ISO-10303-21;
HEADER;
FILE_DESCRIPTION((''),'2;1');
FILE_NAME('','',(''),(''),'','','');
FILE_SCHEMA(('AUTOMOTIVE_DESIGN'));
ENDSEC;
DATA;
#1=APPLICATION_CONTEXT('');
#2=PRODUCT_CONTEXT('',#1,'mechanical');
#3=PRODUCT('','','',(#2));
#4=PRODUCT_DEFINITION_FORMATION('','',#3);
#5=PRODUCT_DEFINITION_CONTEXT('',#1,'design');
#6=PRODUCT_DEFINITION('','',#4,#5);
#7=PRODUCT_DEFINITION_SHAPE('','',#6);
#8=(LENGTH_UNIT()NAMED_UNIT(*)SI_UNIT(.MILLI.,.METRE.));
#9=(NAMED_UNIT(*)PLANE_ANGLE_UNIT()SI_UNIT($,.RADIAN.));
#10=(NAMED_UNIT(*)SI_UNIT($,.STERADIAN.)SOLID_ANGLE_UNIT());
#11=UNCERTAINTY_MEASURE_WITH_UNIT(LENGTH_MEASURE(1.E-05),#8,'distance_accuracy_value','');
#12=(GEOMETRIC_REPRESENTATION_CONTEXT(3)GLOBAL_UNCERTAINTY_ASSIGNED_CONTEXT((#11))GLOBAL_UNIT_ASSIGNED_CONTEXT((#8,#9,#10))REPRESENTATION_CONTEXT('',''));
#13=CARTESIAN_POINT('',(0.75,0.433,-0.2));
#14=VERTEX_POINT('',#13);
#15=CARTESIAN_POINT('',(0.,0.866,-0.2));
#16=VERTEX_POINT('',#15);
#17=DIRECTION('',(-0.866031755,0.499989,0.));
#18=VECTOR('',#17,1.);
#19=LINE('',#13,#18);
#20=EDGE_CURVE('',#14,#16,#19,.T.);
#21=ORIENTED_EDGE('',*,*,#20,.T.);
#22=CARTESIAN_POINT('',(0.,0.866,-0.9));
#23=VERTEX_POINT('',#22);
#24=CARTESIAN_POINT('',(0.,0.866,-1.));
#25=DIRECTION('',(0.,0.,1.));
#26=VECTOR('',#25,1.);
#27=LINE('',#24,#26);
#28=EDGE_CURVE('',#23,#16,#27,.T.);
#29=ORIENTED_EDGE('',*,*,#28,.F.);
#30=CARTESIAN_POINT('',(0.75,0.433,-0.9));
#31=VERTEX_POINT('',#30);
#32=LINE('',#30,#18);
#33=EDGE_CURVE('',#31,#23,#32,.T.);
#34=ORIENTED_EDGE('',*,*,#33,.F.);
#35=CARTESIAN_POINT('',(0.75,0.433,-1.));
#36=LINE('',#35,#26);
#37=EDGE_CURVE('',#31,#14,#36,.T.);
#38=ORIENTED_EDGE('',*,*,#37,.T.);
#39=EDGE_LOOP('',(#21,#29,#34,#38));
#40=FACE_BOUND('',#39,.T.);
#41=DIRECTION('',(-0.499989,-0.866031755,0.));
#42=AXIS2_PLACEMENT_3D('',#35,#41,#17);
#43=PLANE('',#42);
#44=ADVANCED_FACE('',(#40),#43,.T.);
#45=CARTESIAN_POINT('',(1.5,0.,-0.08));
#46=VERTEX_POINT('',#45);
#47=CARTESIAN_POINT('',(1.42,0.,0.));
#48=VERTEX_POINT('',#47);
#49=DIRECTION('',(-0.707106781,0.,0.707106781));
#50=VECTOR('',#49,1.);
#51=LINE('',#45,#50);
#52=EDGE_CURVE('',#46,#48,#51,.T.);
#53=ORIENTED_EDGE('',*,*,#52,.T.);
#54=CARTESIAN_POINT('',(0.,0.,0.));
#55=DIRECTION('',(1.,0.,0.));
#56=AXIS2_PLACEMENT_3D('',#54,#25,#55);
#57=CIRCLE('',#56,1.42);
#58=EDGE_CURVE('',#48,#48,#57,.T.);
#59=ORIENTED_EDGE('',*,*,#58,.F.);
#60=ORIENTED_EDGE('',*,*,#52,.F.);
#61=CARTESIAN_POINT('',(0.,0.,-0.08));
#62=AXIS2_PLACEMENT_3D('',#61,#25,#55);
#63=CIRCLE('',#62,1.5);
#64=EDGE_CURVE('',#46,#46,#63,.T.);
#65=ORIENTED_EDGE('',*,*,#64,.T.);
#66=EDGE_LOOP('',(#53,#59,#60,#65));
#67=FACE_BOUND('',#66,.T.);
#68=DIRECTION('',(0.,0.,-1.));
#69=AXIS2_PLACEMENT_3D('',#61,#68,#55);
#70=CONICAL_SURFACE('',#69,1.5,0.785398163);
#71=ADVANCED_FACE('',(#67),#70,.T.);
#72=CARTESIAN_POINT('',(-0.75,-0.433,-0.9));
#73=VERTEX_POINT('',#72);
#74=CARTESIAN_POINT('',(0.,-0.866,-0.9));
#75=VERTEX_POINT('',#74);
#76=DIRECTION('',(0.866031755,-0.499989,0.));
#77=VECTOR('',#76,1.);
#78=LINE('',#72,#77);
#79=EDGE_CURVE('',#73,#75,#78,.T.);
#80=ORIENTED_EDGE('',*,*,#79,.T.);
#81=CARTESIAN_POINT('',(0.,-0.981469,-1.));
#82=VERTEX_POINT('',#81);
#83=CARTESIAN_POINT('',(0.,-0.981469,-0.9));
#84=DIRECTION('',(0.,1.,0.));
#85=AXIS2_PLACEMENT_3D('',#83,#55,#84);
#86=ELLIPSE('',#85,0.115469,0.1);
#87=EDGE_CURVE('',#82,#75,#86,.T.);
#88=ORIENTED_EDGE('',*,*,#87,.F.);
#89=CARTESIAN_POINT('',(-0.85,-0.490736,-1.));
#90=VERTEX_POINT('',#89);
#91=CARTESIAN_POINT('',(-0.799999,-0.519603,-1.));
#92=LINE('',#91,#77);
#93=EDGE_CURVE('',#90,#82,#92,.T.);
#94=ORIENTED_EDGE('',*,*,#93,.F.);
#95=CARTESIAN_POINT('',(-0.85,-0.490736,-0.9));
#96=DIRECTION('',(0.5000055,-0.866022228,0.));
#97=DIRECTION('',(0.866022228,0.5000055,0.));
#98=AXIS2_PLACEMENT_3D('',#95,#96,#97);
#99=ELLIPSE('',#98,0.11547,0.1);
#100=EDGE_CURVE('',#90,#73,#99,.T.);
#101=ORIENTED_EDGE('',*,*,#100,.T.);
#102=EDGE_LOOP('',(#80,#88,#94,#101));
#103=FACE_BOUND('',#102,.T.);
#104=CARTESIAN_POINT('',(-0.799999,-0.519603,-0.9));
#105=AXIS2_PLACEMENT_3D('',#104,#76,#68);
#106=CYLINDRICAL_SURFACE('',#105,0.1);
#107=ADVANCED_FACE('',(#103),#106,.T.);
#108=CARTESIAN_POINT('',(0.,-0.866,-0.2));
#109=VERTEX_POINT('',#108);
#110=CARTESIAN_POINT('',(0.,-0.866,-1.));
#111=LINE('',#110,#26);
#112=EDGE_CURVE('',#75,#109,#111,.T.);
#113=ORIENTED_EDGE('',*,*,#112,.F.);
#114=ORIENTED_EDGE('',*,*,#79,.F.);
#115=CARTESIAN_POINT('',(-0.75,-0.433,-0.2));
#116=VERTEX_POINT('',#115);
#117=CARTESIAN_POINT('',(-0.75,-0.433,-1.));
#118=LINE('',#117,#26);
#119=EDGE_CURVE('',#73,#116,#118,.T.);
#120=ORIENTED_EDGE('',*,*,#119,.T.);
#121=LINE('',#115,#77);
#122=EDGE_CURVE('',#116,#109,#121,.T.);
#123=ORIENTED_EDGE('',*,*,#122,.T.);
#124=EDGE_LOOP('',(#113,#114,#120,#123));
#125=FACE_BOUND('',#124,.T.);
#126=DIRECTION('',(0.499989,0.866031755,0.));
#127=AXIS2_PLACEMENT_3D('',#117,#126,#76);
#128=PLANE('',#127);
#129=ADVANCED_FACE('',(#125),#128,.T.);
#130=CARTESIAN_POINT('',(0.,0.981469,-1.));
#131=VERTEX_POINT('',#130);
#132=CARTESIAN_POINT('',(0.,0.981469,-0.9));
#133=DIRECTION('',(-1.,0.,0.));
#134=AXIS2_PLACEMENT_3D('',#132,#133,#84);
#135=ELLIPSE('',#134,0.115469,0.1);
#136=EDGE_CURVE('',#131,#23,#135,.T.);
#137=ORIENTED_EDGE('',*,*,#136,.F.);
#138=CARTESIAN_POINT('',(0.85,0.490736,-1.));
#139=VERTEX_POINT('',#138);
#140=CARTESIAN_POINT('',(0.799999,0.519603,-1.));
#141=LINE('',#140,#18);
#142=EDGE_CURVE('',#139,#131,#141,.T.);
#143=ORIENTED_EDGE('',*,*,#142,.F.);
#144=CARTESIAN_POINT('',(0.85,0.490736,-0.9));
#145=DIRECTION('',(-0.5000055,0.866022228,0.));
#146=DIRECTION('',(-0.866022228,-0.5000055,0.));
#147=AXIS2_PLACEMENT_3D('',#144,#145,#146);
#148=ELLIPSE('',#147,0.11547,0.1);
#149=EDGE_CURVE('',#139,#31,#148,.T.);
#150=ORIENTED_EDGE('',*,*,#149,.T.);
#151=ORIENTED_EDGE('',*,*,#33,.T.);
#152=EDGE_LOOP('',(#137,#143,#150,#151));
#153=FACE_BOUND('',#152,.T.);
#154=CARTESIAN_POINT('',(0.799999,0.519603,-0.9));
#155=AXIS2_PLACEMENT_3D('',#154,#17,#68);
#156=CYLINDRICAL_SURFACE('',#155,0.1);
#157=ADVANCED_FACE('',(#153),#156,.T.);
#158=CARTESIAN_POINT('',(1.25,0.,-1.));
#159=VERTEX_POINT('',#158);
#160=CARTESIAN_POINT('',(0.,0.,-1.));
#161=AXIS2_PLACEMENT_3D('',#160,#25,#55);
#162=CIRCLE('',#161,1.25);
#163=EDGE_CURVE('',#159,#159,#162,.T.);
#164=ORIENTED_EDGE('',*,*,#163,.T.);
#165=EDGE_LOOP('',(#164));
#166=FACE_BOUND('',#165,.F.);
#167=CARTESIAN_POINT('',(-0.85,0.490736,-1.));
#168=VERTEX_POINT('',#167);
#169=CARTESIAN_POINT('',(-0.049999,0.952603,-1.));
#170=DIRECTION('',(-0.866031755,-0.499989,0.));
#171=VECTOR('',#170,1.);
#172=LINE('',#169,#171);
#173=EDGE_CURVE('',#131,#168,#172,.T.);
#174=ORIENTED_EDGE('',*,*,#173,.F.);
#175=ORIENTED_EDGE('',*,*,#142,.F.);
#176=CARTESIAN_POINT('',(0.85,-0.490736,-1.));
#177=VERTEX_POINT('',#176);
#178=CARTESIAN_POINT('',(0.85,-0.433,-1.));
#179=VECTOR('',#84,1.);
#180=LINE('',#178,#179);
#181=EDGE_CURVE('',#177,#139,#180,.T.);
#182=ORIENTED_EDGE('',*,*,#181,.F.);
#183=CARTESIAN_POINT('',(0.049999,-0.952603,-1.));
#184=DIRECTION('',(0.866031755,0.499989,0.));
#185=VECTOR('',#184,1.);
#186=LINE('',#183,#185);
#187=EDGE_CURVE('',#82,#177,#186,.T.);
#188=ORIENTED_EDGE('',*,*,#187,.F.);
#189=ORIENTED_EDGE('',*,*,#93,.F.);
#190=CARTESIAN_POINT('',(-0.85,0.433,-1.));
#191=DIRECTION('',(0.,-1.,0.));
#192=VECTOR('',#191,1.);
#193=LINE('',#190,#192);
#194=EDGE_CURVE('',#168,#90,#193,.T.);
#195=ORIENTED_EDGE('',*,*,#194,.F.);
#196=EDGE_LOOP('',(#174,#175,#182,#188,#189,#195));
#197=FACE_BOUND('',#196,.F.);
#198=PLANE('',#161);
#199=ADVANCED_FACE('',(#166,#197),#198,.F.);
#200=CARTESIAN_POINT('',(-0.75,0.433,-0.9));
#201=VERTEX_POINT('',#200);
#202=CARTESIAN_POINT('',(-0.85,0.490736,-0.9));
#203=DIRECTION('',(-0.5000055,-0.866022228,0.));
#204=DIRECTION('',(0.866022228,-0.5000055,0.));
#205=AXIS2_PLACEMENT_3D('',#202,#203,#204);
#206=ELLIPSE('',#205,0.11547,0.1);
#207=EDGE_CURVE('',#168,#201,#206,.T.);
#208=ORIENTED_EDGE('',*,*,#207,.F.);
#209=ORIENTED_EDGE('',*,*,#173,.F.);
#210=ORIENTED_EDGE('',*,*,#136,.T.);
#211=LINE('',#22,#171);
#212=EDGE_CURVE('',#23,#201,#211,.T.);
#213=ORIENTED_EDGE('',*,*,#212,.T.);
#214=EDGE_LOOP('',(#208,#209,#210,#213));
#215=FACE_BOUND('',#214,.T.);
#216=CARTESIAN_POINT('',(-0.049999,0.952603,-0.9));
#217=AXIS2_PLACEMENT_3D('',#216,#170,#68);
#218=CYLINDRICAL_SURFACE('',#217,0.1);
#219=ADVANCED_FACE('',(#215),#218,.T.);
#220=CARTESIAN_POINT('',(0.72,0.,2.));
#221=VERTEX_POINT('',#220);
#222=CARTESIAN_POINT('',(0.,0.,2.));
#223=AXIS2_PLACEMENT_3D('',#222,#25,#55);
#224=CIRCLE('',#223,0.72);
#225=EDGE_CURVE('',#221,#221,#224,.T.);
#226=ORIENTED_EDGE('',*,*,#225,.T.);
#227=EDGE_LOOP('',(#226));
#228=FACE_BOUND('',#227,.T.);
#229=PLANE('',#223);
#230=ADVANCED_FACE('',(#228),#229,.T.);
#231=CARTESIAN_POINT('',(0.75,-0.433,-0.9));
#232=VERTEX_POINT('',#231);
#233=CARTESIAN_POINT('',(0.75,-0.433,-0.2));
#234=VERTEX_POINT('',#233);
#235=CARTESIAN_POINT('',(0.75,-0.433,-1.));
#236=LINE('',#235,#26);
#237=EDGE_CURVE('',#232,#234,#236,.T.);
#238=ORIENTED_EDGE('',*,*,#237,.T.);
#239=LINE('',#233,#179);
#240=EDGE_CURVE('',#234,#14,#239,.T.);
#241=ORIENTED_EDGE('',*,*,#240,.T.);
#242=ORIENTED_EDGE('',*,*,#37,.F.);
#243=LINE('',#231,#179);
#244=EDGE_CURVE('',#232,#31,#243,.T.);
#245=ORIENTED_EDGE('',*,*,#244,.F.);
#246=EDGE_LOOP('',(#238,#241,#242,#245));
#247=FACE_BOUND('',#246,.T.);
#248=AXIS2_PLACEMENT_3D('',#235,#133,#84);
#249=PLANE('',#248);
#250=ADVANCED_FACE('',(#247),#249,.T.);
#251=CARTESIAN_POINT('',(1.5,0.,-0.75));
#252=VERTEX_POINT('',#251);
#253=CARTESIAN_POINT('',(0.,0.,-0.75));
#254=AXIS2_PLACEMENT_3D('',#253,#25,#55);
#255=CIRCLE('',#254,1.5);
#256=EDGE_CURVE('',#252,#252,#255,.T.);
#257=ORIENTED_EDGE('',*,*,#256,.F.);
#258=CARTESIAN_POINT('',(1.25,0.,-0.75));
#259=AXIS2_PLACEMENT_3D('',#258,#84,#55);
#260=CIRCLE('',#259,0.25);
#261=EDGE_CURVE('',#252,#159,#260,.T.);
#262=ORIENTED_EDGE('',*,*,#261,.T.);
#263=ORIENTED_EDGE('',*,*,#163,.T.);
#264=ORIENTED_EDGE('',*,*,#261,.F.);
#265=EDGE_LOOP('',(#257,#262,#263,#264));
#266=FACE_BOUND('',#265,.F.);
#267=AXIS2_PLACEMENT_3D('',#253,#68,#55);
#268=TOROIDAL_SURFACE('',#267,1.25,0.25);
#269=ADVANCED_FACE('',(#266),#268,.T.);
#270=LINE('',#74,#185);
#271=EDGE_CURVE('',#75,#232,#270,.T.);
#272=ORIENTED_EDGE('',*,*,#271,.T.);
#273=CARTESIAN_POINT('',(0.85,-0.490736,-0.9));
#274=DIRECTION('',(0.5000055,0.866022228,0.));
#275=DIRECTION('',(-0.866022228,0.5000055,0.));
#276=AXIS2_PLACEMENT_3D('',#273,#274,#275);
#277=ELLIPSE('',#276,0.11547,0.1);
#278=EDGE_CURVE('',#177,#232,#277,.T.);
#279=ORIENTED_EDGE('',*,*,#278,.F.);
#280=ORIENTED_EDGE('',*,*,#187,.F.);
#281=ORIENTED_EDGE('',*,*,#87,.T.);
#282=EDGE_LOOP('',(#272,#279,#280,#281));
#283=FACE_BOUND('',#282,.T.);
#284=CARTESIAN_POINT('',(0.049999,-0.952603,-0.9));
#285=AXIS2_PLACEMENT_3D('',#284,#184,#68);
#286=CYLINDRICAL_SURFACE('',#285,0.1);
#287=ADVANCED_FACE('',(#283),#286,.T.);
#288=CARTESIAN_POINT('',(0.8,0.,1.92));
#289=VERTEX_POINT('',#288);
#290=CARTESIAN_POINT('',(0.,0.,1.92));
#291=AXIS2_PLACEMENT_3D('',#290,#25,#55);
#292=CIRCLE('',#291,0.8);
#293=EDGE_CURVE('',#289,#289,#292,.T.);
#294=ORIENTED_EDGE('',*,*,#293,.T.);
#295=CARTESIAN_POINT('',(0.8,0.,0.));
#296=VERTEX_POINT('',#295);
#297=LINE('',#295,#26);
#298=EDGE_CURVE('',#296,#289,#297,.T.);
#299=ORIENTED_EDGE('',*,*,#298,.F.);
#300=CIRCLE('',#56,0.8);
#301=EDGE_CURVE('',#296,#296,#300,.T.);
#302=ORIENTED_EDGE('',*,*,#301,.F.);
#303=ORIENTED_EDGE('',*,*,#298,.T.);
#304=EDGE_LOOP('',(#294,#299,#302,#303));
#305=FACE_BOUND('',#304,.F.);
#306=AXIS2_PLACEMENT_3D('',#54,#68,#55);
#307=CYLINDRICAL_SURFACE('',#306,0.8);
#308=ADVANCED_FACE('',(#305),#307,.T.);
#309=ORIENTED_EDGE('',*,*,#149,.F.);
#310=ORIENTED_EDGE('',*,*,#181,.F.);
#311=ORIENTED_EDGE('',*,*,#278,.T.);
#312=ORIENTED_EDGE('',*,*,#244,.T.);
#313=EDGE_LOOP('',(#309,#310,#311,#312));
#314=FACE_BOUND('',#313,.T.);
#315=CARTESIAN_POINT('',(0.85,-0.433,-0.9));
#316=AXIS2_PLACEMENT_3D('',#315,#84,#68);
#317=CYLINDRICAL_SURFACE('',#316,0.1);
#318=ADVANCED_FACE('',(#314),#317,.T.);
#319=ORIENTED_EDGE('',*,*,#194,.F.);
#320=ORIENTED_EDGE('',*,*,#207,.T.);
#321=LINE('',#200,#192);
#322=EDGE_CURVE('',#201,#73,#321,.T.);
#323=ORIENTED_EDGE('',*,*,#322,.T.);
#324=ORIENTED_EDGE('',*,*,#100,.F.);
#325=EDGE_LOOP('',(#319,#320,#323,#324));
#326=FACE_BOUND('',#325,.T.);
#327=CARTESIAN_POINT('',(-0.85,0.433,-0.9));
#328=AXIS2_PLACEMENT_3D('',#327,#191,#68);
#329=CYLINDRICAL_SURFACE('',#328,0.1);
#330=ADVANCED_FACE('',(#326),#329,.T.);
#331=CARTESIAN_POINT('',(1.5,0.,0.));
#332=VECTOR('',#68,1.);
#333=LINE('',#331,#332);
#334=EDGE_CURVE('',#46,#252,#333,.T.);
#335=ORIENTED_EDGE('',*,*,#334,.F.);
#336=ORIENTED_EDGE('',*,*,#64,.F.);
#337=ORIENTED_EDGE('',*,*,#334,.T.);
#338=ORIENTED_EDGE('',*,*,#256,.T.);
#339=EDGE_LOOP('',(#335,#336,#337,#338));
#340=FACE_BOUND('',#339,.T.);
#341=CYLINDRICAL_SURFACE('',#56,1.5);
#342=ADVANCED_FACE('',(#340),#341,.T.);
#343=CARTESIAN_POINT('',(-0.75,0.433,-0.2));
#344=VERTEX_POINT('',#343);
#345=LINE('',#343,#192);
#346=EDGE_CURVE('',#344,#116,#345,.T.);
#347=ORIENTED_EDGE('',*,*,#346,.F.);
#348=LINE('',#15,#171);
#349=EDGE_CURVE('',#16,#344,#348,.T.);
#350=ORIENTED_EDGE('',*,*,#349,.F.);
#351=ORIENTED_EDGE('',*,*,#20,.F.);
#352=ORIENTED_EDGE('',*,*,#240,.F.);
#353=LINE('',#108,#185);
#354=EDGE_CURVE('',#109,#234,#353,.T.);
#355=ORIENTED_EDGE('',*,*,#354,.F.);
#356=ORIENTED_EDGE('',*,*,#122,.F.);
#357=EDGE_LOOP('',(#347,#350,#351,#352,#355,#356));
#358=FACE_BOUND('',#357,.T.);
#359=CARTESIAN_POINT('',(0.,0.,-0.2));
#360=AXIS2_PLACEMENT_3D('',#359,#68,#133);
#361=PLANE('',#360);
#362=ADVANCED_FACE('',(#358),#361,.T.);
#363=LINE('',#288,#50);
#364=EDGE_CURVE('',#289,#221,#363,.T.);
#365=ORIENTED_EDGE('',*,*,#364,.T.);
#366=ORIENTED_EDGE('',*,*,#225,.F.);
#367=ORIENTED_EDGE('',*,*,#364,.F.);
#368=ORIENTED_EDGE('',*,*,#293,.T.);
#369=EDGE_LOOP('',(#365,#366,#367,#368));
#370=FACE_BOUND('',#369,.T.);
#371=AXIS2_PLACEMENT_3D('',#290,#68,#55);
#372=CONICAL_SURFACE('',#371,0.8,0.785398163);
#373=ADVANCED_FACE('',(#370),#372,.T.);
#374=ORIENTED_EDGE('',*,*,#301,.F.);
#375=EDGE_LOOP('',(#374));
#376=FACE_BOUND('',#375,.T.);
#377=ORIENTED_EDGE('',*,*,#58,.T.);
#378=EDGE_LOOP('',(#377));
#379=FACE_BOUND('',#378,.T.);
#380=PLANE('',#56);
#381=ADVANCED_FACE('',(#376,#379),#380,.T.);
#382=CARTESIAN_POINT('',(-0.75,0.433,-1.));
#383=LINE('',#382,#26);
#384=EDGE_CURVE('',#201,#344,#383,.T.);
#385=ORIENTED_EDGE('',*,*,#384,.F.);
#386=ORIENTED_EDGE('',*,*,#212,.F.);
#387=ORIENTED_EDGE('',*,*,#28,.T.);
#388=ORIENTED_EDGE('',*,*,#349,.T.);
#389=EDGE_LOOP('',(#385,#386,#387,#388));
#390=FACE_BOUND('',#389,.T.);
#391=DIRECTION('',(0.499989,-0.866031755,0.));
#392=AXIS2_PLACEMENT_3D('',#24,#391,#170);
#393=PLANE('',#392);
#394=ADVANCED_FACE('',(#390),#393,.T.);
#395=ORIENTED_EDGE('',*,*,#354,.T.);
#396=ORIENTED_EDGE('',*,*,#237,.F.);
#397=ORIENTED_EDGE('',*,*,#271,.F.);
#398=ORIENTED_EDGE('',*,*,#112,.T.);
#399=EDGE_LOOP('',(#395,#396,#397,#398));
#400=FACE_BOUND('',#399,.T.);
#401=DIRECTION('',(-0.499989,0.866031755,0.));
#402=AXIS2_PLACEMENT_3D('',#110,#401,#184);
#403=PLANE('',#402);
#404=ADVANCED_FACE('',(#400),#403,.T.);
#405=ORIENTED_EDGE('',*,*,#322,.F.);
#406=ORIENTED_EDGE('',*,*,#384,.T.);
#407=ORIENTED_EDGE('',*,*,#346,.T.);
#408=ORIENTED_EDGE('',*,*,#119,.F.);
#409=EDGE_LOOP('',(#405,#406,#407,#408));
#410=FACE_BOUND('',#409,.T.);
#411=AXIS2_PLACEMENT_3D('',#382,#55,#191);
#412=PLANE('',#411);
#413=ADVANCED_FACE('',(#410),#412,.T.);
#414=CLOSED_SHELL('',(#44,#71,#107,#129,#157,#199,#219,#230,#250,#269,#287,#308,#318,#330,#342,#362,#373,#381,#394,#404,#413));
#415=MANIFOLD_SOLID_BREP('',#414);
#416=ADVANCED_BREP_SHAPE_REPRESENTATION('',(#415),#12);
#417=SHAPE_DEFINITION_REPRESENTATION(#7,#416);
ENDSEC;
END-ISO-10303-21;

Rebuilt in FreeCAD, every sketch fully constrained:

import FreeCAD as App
import Part
import Sketcher
from FreeCAD import Vector
Q = App.Units.Quantity


def edges_at(feature, points):
    """Names of the edges that pass closest to the given points."""
    edges = feature.Shape.Edges
    near = lambda p: min(range(len(edges)), key=lambda i: edges[i].distToShape(Part.Vertex(*p))[0])
    return sorted({f"Edge{near(p) + 1}" for p in points})


def add_polygon(sketch, points):
    """Adds a closed chain of lines whose ends are joined by coincident constraints."""
    first, n = sketch.GeometryCount, len(points)
    for a, b in zip(points, points[1:] + points[:1]):
        sketch.addGeometry(Part.LineSegment(App.Vector(*a, 0), App.Vector(*b, 0)), False)
    for i in range(n):
        sketch.addConstraint(Sketcher.Constraint("Coincident", first + i, 2, first + (i + 1) % n, 1))

doc = App.newDocument("Part")
body = doc.addObject("PartDesign::Body", "Body")

# Sketch on XY plane
sketch1 = body.newObject("Sketcher::SketchObject", "Sketch")
sketch1.AttachmentSupport = (doc.getObject("XY_Plane"), [""])
sketch1.MapMode = "FlatFace"
sketch1.addGeometry(Part.Circle(Vector(0, 0, 0), Vector(0, 0, 1), 0.8), False)
sketch1.addConstraint([
    Sketcher.Constraint("Coincident", 0, 3, -1, 1),
    Sketcher.Constraint("Diameter", 0, 1.6),
])
pad1 = body.newObject("PartDesign::Pad", "Pad")
pad1.Profile = sketch1
pad1.Length = 2

# Sketch on XY plane
sketch2 = body.newObject("Sketcher::SketchObject", "Sketch001")
sketch2.AttachmentSupport = (doc.getObject("XY_Plane"), [""])
sketch2.MapMode = "FlatFace"
sketch2.addGeometry(Part.Circle(Vector(0, 0, 0), Vector(0, 0, 1), 1.5), False)
sketch2.addConstraint([
    Sketcher.Constraint("Coincident", 0, 3, -1, 1),
    Sketcher.Constraint("Diameter", 0, 3.0),
])
pad2 = body.newObject("PartDesign::Pad", "Pad001")
pad2.Profile = sketch2
pad2.Length = 1
pad2.Reversed = True

# Sketch on XY plane
sketch3 = body.newObject("Sketcher::SketchObject", "Sketch002")
sketch3.AttachmentSupport = (doc.getObject("XY_Plane"), [""])
sketch3.MapMode = "FlatFace"
sketch3.AttachmentOffset = App.Placement(Vector(0, 0, -1), App.Rotation())
add_polygon(sketch3, [(0, 0.9), (0.8, 0.4), (0.8, -0.4), (0, -0.9), (-0.8, -0.4), (-0.8, 0.4)])  # lines 0-5
sketch3.addConstraint([
    Sketcher.Constraint("Vertical", 1),
    Sketcher.Constraint("Vertical", 4),
    Sketcher.Constraint("Symmetric", 0, 2, 3, 2, -1, 1),
    Sketcher.Constraint("Symmetric", 2, 2, 5, 2, -1, 1),
    Sketcher.Constraint("PointOnObject", 2, 2, -2),
    Sketcher.Constraint("Parallel", 2, 5),
    Sketcher.Constraint("Horizontal", 1, 2, 3, 2),
    Sketcher.Constraint("DistanceX", 3, 2, 1, 2, 1.5),
    Sketcher.Constraint("Angle", 0, Q("-29.9993 deg")),
    Sketcher.Constraint("DistanceY", 1, 2, 1, 1, 0.866),
])
pocket1 = body.newObject("PartDesign::Pocket", "Pocket")
pocket1.Profile = sketch3
pocket1.Length = 0.8
pocket1.Reversed = True
doc.recompute()

fillet = body.newObject("PartDesign::Fillet", "Fillet")
fillet.Base = (pocket1, edges_at(pocket1, [(-1.5, 0, -1)]))
fillet.Radius = 0.25
doc.recompute()

fillet2 = body.newObject("PartDesign::Fillet", "Fillet001")
fillet2.Base = (fillet, edges_at(fillet, [
    (0.375, 0.649, -1),
    (0.75, 0, -1),
    (0.375, -0.649, -1),
    (-0.375, -0.649, -1),
    (-0.75, 0, -1),
    (-0.375, 0.649, -1),
]))
fillet2.Radius = 0.1
doc.recompute()

chamfer = body.newObject("PartDesign::Chamfer", "Chamfer")
chamfer.Base = (fillet2, edges_at(fillet2, [(-0.8, 0, 2), (-1.5, 0, 0)]))
chamfer.Size = 0.08

doc.recompute()
